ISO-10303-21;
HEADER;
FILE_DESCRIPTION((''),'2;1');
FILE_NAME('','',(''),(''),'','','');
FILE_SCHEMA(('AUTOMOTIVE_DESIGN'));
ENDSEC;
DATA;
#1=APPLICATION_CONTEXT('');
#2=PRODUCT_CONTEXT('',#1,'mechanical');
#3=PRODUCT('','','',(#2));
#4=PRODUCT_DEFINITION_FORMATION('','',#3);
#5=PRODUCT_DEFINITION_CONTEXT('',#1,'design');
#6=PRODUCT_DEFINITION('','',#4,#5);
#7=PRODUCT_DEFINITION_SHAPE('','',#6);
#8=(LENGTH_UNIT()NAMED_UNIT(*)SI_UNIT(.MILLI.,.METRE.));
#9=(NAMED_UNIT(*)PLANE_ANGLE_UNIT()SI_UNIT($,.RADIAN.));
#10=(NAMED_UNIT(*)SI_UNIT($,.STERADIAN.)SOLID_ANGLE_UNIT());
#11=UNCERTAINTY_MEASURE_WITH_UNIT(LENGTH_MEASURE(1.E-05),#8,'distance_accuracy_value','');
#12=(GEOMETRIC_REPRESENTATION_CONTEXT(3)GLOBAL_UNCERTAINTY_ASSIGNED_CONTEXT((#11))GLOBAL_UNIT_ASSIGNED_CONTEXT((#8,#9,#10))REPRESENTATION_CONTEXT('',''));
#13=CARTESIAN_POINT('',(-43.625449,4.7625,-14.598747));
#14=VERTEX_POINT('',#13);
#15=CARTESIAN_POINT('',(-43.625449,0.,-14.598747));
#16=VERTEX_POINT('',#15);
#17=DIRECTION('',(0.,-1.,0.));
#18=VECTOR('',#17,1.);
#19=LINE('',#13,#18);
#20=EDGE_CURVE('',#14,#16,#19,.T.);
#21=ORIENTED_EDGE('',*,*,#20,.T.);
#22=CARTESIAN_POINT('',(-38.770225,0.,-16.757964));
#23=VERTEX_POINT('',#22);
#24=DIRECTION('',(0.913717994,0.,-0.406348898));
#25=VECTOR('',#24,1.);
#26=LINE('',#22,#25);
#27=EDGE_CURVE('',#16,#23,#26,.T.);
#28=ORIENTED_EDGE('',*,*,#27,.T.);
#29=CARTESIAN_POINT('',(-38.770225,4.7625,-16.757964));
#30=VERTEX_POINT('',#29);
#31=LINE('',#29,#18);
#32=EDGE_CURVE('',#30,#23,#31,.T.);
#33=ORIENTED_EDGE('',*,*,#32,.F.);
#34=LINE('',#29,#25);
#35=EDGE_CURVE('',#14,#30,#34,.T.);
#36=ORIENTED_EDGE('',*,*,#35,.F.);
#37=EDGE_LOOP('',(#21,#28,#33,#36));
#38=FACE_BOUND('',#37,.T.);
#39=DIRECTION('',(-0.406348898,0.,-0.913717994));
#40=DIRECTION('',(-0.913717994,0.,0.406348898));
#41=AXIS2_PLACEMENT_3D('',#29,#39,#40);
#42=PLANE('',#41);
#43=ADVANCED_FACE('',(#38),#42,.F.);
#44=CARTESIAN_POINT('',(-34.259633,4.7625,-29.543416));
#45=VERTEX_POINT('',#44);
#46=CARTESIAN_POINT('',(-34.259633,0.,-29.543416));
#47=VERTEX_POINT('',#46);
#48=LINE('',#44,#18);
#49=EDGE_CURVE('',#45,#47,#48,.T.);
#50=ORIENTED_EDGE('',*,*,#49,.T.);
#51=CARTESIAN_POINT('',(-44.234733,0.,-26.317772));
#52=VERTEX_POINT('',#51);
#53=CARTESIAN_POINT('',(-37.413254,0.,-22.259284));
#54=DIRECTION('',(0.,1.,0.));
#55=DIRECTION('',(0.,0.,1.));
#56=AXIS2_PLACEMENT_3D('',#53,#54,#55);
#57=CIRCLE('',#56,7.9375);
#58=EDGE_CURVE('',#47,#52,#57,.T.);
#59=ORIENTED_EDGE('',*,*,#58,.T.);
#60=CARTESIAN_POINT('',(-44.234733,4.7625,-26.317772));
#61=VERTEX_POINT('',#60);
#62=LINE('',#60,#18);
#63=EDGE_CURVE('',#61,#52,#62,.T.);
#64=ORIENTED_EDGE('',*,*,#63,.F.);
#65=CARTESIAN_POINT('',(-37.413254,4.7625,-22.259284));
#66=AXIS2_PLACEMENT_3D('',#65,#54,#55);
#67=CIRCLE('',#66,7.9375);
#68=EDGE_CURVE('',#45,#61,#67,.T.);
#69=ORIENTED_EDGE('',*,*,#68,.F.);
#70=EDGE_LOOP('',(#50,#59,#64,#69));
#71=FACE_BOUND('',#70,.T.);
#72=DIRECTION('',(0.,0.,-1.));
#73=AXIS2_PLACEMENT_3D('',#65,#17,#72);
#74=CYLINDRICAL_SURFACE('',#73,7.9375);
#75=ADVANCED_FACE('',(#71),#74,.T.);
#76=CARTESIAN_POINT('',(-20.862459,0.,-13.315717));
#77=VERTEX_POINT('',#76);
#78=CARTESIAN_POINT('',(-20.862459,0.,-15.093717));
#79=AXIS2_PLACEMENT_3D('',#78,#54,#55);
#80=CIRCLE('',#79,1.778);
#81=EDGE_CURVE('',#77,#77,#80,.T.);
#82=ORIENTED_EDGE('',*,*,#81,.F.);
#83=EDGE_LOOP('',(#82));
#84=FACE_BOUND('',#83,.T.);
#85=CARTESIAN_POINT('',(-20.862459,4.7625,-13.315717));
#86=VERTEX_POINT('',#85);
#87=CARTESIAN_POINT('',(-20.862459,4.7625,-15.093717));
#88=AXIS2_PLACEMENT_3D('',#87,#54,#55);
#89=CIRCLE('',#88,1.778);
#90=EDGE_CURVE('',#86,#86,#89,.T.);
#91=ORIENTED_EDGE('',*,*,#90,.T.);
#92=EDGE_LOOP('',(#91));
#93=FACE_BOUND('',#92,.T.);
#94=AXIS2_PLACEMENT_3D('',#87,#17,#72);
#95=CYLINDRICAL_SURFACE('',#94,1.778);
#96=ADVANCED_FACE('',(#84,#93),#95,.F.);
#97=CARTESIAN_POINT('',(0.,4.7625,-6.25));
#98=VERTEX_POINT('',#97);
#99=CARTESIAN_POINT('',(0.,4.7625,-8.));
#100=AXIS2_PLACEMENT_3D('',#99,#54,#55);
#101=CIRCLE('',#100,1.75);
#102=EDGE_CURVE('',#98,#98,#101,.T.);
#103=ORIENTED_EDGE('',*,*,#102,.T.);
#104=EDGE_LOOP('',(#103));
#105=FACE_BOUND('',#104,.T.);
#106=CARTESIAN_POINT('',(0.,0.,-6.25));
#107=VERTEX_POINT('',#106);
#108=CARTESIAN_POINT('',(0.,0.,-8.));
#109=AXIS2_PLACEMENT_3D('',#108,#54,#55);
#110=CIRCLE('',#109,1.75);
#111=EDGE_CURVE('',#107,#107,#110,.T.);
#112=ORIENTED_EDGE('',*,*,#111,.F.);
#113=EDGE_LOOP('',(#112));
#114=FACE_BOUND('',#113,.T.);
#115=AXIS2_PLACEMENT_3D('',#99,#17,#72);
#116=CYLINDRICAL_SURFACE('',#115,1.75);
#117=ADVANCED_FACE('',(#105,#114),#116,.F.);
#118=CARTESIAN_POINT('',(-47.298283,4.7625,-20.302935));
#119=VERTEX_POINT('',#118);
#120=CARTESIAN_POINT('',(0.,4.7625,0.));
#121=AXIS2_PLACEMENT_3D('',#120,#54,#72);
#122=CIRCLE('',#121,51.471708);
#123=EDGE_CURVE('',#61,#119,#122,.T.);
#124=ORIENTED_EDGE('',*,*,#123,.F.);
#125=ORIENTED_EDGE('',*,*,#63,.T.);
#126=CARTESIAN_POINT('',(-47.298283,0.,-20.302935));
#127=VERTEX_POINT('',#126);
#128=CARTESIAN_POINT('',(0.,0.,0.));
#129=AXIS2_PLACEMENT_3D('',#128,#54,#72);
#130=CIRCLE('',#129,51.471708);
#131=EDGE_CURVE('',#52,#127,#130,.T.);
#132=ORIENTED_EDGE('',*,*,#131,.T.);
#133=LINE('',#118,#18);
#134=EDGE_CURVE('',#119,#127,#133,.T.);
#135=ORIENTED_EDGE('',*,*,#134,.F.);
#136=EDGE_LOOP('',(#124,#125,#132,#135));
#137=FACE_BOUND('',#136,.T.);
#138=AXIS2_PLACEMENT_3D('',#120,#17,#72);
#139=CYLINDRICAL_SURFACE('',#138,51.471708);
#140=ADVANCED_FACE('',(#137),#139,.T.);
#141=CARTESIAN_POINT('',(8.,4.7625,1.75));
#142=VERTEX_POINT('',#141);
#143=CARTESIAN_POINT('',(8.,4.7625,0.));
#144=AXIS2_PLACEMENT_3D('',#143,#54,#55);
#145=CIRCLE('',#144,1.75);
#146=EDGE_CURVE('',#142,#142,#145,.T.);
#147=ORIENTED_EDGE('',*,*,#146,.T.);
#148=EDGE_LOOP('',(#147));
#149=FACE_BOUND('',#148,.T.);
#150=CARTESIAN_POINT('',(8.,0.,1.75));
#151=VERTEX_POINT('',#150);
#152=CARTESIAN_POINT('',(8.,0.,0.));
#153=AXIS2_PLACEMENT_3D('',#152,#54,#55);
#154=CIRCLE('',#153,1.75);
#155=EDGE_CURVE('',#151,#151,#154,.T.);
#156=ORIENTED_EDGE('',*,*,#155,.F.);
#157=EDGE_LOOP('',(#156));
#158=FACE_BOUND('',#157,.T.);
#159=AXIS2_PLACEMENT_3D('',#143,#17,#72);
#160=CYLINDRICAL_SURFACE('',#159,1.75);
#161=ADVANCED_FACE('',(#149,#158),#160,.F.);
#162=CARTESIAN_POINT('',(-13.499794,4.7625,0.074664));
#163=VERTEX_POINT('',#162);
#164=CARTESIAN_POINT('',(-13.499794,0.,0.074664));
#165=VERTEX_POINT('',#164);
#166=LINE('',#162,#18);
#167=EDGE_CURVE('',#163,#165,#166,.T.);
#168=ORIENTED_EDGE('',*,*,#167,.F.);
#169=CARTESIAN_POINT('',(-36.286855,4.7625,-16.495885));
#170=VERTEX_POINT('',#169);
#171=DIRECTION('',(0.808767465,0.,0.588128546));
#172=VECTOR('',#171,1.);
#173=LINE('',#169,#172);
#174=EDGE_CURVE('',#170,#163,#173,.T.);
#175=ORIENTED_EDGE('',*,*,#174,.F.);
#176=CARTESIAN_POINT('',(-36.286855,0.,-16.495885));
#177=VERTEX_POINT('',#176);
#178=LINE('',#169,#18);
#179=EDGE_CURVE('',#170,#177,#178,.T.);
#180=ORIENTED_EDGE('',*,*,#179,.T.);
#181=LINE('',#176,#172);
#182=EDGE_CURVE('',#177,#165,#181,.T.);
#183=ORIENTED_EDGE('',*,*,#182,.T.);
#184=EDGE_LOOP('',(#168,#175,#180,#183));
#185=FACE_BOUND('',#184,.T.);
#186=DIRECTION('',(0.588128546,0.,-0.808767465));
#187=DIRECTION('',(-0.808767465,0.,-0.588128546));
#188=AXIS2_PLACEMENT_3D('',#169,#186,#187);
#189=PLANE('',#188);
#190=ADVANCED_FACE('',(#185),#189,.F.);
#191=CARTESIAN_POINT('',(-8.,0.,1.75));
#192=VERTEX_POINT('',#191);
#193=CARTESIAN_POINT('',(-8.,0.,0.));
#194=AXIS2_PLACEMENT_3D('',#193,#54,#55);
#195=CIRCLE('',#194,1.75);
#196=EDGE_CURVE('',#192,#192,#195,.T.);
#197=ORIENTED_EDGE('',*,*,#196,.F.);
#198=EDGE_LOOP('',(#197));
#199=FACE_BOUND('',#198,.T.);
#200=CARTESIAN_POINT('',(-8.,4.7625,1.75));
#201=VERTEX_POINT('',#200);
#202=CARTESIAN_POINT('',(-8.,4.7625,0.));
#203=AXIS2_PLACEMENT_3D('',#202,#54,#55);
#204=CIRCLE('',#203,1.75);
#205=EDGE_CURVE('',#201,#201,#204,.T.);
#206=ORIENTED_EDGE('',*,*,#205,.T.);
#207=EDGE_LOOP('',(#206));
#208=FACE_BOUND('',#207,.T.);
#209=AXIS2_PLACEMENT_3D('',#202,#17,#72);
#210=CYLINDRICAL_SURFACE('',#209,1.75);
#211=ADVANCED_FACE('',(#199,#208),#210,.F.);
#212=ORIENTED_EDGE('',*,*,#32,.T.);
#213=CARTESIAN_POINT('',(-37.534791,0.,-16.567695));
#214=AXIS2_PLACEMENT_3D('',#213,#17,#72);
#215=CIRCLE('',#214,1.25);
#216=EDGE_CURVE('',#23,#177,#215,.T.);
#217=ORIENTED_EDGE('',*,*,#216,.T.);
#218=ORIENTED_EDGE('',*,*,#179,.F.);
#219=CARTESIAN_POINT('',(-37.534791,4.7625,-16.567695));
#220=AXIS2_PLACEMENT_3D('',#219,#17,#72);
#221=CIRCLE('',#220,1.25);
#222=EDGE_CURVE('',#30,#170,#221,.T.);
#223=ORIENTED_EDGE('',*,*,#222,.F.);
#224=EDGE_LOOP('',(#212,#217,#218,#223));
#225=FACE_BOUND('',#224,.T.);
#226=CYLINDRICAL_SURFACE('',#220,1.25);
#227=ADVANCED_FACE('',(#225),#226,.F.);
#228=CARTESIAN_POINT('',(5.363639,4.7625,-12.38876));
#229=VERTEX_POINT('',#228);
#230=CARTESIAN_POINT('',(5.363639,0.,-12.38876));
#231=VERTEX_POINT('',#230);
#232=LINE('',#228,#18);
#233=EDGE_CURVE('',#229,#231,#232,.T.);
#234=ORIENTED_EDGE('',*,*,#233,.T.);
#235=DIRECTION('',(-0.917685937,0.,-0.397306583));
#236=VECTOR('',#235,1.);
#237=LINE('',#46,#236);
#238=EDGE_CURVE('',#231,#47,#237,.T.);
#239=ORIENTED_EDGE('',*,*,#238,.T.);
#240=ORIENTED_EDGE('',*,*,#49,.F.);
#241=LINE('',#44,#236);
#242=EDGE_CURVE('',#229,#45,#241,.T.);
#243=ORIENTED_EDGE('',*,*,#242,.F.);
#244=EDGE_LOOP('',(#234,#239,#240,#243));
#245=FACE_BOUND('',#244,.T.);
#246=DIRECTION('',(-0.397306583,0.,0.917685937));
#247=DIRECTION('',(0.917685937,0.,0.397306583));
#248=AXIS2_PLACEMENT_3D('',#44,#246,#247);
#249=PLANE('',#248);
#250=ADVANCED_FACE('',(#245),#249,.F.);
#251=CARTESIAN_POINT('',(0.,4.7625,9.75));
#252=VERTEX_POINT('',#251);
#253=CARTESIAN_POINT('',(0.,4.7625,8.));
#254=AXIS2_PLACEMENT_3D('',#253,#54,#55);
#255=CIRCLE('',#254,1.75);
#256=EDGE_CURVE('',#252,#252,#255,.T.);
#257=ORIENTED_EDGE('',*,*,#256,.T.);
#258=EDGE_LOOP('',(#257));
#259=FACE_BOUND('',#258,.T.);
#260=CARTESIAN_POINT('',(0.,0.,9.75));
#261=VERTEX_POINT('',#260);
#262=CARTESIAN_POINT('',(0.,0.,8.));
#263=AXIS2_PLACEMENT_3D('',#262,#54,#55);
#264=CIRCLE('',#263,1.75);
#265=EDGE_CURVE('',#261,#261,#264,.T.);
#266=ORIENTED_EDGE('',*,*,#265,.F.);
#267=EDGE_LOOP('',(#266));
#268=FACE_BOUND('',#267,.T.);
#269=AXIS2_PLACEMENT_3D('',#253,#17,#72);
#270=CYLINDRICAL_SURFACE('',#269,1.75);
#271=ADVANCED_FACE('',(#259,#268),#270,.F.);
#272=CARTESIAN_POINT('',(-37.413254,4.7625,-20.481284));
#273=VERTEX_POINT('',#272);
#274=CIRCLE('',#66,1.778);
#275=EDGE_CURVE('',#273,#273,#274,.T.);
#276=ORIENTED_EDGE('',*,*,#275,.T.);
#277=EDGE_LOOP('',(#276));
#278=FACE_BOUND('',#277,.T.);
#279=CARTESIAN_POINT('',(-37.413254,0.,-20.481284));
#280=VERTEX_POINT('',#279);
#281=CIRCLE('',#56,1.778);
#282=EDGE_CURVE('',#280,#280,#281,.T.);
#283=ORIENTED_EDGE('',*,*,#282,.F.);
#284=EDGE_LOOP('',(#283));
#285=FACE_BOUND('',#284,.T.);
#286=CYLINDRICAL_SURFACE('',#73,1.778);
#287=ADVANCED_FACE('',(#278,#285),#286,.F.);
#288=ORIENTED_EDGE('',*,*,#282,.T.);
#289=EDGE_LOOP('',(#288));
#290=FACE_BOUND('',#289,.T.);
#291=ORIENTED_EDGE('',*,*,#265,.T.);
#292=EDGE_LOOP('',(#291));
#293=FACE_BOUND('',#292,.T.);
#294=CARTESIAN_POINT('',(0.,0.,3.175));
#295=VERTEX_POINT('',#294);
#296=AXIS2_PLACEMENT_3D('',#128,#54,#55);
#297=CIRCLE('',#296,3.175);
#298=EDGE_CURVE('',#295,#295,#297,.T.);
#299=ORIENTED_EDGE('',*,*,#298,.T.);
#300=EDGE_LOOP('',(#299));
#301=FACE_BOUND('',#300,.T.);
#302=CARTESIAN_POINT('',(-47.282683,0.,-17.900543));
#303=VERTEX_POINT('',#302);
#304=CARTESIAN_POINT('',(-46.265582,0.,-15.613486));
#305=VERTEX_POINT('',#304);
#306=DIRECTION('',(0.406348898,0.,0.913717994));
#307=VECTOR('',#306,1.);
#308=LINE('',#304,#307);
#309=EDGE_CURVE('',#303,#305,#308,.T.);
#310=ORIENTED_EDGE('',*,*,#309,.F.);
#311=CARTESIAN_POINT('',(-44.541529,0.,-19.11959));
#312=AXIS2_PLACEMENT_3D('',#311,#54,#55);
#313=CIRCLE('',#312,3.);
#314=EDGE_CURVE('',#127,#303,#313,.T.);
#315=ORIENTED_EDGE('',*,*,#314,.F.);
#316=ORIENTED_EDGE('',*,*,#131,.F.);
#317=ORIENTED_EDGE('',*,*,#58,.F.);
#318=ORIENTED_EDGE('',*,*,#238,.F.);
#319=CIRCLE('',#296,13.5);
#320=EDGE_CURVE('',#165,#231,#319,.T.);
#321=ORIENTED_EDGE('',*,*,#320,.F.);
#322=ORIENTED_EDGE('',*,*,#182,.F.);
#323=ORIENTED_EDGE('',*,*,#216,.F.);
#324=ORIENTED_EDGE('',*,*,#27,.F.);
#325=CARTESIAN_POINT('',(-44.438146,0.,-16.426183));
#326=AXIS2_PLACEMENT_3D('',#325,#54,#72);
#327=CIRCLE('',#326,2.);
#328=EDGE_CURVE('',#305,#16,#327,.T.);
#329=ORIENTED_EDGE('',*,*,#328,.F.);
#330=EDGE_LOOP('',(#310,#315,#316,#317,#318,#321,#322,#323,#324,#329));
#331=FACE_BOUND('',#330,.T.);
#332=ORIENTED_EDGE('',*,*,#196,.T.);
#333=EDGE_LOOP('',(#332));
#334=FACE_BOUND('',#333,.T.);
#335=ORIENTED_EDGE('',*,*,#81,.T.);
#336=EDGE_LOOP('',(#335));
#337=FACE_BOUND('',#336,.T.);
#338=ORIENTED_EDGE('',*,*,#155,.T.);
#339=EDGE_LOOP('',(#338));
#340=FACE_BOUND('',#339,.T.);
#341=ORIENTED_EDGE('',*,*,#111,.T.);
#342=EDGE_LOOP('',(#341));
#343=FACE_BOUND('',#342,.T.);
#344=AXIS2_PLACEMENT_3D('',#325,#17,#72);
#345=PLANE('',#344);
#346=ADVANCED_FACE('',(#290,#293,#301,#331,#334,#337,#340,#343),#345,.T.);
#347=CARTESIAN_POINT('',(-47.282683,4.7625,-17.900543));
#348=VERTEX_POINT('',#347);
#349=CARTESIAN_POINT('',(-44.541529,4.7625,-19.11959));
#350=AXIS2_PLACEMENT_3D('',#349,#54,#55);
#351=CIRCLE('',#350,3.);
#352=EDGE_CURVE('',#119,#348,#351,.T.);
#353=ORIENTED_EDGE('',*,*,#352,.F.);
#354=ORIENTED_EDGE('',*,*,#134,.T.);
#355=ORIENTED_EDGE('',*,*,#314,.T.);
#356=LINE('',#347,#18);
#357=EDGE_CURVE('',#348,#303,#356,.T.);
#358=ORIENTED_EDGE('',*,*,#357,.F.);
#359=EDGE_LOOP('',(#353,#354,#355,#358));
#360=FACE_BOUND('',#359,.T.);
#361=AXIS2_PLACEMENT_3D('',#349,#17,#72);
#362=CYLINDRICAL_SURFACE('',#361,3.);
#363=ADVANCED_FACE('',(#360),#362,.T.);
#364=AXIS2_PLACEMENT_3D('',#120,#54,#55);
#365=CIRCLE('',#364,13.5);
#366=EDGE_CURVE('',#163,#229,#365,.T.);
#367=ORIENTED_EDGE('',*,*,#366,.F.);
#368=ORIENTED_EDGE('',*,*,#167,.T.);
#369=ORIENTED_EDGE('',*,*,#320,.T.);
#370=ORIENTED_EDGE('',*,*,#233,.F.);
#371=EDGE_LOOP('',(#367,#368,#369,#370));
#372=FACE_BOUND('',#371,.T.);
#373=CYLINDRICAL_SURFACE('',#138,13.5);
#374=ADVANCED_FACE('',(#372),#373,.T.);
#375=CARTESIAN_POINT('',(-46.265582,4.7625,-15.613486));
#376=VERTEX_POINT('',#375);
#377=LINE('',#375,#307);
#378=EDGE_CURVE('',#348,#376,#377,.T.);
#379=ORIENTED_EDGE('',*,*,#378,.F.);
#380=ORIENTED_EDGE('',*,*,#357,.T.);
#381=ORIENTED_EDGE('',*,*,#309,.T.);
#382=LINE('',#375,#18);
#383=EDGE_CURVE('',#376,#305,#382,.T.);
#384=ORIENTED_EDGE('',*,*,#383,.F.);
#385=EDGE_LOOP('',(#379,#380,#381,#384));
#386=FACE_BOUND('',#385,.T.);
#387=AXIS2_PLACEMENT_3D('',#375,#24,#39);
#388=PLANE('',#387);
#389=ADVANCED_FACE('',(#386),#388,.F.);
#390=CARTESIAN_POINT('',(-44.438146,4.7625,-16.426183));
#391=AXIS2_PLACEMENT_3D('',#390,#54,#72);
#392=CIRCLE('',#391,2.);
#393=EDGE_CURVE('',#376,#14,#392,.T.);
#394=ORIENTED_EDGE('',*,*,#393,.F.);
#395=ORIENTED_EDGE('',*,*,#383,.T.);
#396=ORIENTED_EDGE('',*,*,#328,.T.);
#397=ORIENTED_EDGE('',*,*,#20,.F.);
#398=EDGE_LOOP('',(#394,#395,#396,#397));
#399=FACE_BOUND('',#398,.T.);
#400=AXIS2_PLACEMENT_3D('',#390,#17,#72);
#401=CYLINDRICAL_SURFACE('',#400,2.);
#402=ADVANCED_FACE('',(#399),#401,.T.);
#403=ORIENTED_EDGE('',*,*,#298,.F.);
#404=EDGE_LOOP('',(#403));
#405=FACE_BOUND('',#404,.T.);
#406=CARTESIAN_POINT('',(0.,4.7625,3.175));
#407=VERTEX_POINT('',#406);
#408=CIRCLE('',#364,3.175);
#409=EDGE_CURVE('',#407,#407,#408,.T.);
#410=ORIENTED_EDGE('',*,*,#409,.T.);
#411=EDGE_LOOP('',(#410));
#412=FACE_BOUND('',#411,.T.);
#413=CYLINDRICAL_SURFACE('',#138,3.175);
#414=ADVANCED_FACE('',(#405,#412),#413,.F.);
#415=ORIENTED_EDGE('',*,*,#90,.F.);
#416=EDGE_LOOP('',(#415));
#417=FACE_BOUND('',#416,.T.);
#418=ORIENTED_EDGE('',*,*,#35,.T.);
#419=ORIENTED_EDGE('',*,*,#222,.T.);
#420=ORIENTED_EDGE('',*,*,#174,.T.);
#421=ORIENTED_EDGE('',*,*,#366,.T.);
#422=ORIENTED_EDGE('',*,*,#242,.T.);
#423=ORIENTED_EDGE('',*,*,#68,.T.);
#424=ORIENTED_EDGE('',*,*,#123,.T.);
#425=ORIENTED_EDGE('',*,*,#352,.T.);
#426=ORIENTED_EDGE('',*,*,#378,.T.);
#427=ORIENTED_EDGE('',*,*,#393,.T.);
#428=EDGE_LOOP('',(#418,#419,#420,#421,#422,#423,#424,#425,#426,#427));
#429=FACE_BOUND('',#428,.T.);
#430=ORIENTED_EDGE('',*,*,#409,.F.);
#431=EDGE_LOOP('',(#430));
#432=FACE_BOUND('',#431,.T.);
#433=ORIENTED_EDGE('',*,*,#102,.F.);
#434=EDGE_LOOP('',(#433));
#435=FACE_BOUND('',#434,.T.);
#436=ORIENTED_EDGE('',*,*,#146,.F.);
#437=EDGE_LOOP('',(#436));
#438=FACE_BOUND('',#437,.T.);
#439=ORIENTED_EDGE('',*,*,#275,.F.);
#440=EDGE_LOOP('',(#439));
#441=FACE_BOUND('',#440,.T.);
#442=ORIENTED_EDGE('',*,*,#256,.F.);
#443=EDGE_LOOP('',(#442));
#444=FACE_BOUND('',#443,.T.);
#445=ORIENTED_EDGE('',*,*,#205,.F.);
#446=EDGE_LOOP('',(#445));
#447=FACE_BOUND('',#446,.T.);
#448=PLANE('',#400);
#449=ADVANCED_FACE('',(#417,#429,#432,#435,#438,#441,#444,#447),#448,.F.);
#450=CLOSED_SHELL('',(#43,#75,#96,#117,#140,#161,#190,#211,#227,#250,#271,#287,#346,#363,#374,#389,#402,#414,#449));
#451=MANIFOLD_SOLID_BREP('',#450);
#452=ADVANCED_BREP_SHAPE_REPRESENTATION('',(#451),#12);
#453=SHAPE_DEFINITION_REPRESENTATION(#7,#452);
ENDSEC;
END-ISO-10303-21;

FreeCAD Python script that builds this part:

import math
import FreeCAD as App
import Part
import Sketcher

V = App.Vector
Q = App.Units.Quantity

doc = App.newDocument("Part")
body = doc.addObject("PartDesign::Body", "Body")

# Sketch on XZ plane
sketch1 = body.newObject("Sketcher::SketchObject", "Sketch")
sketch1.AttachmentSupport = (doc.getObject("XZ_Plane"), [""])
sketch1.MapMode = "FlatFace"
sketch1.addGeometry([
    Part.LineSegment(V(-43.625449, -14.598747, 0), V(-38.770225, -16.757964, 0)),  # 0
    Part.ArcOfCircle(Part.Circle(V(-37.534791, -16.567695, 0), V(0, 0, 1), 1.25), math.radians(-171.244711), math.radians(3.293343)),  # 1
    Part.LineSegment(V(-36.286855, -16.495885, 0), V(-13.499794, 0.074664, 0)),  # 2
    Part.ArcOfCircle(Part.Circle(V(0, 0, 0), V(0, 0, 1), 13.5), math.radians(-66.590092), math.radians(179.683113)),  # 3
    Part.LineSegment(V(5.363639, -12.38876, 0), V(-34.259633, -29.543416, 0)),  # 4
    Part.ArcOfCircle(Part.Circle(V(-37.413254, -22.259284, 0), V(0, 0, 1), 7.9375), math.radians(-149.249166), math.radians(-66.590092)),  # 5
    Part.ArcOfCircle(Part.Circle(V(0, 0, 0), V(0, 0, 1), 51.471709), math.radians(-156.768421), math.radians(-149.249166)),  # 6
    Part.ArcOfCircle(Part.Circle(V(-44.541529, -19.11959, 0), V(0, 0, 1), 3), math.radians(156.024316), math.radians(203.231579)),  # 7
    Part.LineSegment(V(-47.282683, -17.900543, 0), V(-46.265582, -15.613486, 0)),  # 8
    Part.ArcOfCircle(Part.Circle(V(-44.438146, -16.426183, 0), V(0, 0, 1), 2), math.radians(66.024316), math.radians(156.024316)),  # 9
    Part.Circle(V(0, 8, 0), V(0, 0, 1), 1.75),  # 10
    Part.Circle(V(8, 0, 0), V(0, 0, 1), 1.75),  # 11
    Part.Circle(V(0, 0, 0), V(0, 0, 1), 3.175),  # 12
    Part.Circle(V(-8, 0, 0), V(0, 0, 1), 1.75),  # 13
    Part.Circle(V(0, -8, 0), V(0, 0, 1), 1.75),  # 14
    Part.Circle(V(-20.862459, -15.093717, 0), V(0, 0, 1), 1.778),  # 15
    Part.Circle(V(-37.413254, -22.259284, 0), V(0, 0, 1), 1.778),  # 16
], False)
sketch1.addConstraint([
    Sketcher.Constraint("Coincident", 0, 2, 1, 1),
    Sketcher.Constraint("Coincident", 1, 2, 2, 1),
    Sketcher.Constraint("Coincident", 2, 2, 3, 2),
    Sketcher.Constraint("Coincident", 3, 1, 4, 1),
    Sketcher.Constraint("Coincident", 4, 2, 5, 2),
    Sketcher.Constraint("Coincident", 5, 1, 6, 2),
    Sketcher.Constraint("Coincident", 6, 1, 7, 2),
    Sketcher.Constraint("Coincident", 7, 1, 8, 1),
    Sketcher.Constraint("Coincident", 8, 2, 9, 2),
    Sketcher.Constraint("Coincident", 9, 1, 0, 1),
    Sketcher.Constraint("Coincident", 3, 3, -1, 1),
    Sketcher.Constraint("Coincident", 6, 3, -1, 1),
    Sketcher.Constraint("Coincident", 12, 3, -1, 1),
    Sketcher.Constraint("Coincident", 16, 3, 5, 3),
    Sketcher.Constraint("PointOnObject", 10, 3, -2),
    Sketcher.Constraint("PointOnObject", 11, 3, -1),
    Sketcher.Constraint("PointOnObject", 13, 3, -1),
    Sketcher.Constraint("PointOnObject", 14, 3, -2),
    Sketcher.Constraint("Radius", 7, Q("3 mm")),
    Sketcher.Constraint("Radius", 9, Q("2 mm")),
    Sketcher.Constraint("Diameter", 10, Q("3.5 mm")),
    Sketcher.Constraint("Diameter", 11, Q("3.5 mm")),
    Sketcher.Constraint("Diameter", 13, Q("3.5 mm")),
    Sketcher.Constraint("Diameter", 14, Q("3.5 mm")),
    Sketcher.Constraint("Radius", 3, Q("13.5 mm")),
    Sketcher.Constraint("Diameter", 12, Q("6.35 mm")),
    Sketcher.Constraint("Radius", 1, Q("1.25 mm")),
    Sketcher.Constraint("Diameter", 15, Q("3.556 mm")),
    Sketcher.Constraint("Diameter", 16, Q("3.556 mm")),
    Sketcher.Constraint("DistanceY", -1, 1, 10, 3, Q("8 mm")),
    Sketcher.Constraint("DistanceX", -1, 1, 11, 3, Q("8 mm")),
    Sketcher.Constraint("DistanceX", 13, 3, -1, 1, Q("8 mm")),
    Sketcher.Constraint("DistanceY", 14, 3, -1, 1, Q("8 mm")),
    Sketcher.Constraint("Radius", 5, Q("7.9375 mm")),
    Sketcher.Constraint("Radius", 6, Q("51.471709 mm")),
    Sketcher.Constraint("Distance", 0, Q("5.3137 mm")),
    Sketcher.Constraint("DistanceY", 5, 3, 9, 3, Q("5.833101 mm")),
    Sketcher.Constraint("DistanceX", 5, 3, 1, 2, Q("1.126399 mm")),
    Sketcher.Constraint("DistanceY", 5, 3, 1, 2, Q("5.763399 mm")),
    Sketcher.Constraint("DistanceX", 5, 1, 4, 2, Q("9.9751 mm")),
    Sketcher.Constraint("DistanceX", 6, 1, 7, 1, Q("0.0156 mm")),
    Sketcher.Constraint("DistanceX", 7, 1, 8, 2, Q("1.017101 mm")),
    Sketcher.Constraint("DistanceX", 1, 3, -1, 1, Q("37.534791 mm")),
    Sketcher.Constraint("DistanceX", 7, 3, -1, 1, Q("44.541529 mm")),
    Sketcher.Constraint("DistanceX", 15, 3, -1, 1, Q("20.862459 mm")),
    Sketcher.Constraint("DistanceX", -1, 1, 3, 1, Q("5.363639 mm")),
    Sketcher.Constraint("DistanceX", 9, 1, -1, 1, Q("43.625449 mm")),
    Sketcher.Constraint("DistanceY", 5, 3, 1, 3, Q("5.691589 mm")),
    Sketcher.Constraint("DistanceY", 0, 2, 1, 3, Q("0.190268 mm")),
    Sketcher.Constraint("DistanceX", 16, 3, 4, 2, Q("3.153621 mm")),
    Sketcher.Constraint("DistanceY", 6, 1, 9, 3, Q("3.876751 mm")),
    Sketcher.Constraint("Distance", 2, Q("28.175047 mm")),
    Sketcher.Constraint("DistanceY", 15, 3, -1, 1, Q("15.093717 mm")),
])
pad1 = body.newObject("PartDesign::Pad", "Pad")
pad1.Profile = sketch1
pad1.Length = 4.7625
pad1.Reversed = True

doc.recompute()
